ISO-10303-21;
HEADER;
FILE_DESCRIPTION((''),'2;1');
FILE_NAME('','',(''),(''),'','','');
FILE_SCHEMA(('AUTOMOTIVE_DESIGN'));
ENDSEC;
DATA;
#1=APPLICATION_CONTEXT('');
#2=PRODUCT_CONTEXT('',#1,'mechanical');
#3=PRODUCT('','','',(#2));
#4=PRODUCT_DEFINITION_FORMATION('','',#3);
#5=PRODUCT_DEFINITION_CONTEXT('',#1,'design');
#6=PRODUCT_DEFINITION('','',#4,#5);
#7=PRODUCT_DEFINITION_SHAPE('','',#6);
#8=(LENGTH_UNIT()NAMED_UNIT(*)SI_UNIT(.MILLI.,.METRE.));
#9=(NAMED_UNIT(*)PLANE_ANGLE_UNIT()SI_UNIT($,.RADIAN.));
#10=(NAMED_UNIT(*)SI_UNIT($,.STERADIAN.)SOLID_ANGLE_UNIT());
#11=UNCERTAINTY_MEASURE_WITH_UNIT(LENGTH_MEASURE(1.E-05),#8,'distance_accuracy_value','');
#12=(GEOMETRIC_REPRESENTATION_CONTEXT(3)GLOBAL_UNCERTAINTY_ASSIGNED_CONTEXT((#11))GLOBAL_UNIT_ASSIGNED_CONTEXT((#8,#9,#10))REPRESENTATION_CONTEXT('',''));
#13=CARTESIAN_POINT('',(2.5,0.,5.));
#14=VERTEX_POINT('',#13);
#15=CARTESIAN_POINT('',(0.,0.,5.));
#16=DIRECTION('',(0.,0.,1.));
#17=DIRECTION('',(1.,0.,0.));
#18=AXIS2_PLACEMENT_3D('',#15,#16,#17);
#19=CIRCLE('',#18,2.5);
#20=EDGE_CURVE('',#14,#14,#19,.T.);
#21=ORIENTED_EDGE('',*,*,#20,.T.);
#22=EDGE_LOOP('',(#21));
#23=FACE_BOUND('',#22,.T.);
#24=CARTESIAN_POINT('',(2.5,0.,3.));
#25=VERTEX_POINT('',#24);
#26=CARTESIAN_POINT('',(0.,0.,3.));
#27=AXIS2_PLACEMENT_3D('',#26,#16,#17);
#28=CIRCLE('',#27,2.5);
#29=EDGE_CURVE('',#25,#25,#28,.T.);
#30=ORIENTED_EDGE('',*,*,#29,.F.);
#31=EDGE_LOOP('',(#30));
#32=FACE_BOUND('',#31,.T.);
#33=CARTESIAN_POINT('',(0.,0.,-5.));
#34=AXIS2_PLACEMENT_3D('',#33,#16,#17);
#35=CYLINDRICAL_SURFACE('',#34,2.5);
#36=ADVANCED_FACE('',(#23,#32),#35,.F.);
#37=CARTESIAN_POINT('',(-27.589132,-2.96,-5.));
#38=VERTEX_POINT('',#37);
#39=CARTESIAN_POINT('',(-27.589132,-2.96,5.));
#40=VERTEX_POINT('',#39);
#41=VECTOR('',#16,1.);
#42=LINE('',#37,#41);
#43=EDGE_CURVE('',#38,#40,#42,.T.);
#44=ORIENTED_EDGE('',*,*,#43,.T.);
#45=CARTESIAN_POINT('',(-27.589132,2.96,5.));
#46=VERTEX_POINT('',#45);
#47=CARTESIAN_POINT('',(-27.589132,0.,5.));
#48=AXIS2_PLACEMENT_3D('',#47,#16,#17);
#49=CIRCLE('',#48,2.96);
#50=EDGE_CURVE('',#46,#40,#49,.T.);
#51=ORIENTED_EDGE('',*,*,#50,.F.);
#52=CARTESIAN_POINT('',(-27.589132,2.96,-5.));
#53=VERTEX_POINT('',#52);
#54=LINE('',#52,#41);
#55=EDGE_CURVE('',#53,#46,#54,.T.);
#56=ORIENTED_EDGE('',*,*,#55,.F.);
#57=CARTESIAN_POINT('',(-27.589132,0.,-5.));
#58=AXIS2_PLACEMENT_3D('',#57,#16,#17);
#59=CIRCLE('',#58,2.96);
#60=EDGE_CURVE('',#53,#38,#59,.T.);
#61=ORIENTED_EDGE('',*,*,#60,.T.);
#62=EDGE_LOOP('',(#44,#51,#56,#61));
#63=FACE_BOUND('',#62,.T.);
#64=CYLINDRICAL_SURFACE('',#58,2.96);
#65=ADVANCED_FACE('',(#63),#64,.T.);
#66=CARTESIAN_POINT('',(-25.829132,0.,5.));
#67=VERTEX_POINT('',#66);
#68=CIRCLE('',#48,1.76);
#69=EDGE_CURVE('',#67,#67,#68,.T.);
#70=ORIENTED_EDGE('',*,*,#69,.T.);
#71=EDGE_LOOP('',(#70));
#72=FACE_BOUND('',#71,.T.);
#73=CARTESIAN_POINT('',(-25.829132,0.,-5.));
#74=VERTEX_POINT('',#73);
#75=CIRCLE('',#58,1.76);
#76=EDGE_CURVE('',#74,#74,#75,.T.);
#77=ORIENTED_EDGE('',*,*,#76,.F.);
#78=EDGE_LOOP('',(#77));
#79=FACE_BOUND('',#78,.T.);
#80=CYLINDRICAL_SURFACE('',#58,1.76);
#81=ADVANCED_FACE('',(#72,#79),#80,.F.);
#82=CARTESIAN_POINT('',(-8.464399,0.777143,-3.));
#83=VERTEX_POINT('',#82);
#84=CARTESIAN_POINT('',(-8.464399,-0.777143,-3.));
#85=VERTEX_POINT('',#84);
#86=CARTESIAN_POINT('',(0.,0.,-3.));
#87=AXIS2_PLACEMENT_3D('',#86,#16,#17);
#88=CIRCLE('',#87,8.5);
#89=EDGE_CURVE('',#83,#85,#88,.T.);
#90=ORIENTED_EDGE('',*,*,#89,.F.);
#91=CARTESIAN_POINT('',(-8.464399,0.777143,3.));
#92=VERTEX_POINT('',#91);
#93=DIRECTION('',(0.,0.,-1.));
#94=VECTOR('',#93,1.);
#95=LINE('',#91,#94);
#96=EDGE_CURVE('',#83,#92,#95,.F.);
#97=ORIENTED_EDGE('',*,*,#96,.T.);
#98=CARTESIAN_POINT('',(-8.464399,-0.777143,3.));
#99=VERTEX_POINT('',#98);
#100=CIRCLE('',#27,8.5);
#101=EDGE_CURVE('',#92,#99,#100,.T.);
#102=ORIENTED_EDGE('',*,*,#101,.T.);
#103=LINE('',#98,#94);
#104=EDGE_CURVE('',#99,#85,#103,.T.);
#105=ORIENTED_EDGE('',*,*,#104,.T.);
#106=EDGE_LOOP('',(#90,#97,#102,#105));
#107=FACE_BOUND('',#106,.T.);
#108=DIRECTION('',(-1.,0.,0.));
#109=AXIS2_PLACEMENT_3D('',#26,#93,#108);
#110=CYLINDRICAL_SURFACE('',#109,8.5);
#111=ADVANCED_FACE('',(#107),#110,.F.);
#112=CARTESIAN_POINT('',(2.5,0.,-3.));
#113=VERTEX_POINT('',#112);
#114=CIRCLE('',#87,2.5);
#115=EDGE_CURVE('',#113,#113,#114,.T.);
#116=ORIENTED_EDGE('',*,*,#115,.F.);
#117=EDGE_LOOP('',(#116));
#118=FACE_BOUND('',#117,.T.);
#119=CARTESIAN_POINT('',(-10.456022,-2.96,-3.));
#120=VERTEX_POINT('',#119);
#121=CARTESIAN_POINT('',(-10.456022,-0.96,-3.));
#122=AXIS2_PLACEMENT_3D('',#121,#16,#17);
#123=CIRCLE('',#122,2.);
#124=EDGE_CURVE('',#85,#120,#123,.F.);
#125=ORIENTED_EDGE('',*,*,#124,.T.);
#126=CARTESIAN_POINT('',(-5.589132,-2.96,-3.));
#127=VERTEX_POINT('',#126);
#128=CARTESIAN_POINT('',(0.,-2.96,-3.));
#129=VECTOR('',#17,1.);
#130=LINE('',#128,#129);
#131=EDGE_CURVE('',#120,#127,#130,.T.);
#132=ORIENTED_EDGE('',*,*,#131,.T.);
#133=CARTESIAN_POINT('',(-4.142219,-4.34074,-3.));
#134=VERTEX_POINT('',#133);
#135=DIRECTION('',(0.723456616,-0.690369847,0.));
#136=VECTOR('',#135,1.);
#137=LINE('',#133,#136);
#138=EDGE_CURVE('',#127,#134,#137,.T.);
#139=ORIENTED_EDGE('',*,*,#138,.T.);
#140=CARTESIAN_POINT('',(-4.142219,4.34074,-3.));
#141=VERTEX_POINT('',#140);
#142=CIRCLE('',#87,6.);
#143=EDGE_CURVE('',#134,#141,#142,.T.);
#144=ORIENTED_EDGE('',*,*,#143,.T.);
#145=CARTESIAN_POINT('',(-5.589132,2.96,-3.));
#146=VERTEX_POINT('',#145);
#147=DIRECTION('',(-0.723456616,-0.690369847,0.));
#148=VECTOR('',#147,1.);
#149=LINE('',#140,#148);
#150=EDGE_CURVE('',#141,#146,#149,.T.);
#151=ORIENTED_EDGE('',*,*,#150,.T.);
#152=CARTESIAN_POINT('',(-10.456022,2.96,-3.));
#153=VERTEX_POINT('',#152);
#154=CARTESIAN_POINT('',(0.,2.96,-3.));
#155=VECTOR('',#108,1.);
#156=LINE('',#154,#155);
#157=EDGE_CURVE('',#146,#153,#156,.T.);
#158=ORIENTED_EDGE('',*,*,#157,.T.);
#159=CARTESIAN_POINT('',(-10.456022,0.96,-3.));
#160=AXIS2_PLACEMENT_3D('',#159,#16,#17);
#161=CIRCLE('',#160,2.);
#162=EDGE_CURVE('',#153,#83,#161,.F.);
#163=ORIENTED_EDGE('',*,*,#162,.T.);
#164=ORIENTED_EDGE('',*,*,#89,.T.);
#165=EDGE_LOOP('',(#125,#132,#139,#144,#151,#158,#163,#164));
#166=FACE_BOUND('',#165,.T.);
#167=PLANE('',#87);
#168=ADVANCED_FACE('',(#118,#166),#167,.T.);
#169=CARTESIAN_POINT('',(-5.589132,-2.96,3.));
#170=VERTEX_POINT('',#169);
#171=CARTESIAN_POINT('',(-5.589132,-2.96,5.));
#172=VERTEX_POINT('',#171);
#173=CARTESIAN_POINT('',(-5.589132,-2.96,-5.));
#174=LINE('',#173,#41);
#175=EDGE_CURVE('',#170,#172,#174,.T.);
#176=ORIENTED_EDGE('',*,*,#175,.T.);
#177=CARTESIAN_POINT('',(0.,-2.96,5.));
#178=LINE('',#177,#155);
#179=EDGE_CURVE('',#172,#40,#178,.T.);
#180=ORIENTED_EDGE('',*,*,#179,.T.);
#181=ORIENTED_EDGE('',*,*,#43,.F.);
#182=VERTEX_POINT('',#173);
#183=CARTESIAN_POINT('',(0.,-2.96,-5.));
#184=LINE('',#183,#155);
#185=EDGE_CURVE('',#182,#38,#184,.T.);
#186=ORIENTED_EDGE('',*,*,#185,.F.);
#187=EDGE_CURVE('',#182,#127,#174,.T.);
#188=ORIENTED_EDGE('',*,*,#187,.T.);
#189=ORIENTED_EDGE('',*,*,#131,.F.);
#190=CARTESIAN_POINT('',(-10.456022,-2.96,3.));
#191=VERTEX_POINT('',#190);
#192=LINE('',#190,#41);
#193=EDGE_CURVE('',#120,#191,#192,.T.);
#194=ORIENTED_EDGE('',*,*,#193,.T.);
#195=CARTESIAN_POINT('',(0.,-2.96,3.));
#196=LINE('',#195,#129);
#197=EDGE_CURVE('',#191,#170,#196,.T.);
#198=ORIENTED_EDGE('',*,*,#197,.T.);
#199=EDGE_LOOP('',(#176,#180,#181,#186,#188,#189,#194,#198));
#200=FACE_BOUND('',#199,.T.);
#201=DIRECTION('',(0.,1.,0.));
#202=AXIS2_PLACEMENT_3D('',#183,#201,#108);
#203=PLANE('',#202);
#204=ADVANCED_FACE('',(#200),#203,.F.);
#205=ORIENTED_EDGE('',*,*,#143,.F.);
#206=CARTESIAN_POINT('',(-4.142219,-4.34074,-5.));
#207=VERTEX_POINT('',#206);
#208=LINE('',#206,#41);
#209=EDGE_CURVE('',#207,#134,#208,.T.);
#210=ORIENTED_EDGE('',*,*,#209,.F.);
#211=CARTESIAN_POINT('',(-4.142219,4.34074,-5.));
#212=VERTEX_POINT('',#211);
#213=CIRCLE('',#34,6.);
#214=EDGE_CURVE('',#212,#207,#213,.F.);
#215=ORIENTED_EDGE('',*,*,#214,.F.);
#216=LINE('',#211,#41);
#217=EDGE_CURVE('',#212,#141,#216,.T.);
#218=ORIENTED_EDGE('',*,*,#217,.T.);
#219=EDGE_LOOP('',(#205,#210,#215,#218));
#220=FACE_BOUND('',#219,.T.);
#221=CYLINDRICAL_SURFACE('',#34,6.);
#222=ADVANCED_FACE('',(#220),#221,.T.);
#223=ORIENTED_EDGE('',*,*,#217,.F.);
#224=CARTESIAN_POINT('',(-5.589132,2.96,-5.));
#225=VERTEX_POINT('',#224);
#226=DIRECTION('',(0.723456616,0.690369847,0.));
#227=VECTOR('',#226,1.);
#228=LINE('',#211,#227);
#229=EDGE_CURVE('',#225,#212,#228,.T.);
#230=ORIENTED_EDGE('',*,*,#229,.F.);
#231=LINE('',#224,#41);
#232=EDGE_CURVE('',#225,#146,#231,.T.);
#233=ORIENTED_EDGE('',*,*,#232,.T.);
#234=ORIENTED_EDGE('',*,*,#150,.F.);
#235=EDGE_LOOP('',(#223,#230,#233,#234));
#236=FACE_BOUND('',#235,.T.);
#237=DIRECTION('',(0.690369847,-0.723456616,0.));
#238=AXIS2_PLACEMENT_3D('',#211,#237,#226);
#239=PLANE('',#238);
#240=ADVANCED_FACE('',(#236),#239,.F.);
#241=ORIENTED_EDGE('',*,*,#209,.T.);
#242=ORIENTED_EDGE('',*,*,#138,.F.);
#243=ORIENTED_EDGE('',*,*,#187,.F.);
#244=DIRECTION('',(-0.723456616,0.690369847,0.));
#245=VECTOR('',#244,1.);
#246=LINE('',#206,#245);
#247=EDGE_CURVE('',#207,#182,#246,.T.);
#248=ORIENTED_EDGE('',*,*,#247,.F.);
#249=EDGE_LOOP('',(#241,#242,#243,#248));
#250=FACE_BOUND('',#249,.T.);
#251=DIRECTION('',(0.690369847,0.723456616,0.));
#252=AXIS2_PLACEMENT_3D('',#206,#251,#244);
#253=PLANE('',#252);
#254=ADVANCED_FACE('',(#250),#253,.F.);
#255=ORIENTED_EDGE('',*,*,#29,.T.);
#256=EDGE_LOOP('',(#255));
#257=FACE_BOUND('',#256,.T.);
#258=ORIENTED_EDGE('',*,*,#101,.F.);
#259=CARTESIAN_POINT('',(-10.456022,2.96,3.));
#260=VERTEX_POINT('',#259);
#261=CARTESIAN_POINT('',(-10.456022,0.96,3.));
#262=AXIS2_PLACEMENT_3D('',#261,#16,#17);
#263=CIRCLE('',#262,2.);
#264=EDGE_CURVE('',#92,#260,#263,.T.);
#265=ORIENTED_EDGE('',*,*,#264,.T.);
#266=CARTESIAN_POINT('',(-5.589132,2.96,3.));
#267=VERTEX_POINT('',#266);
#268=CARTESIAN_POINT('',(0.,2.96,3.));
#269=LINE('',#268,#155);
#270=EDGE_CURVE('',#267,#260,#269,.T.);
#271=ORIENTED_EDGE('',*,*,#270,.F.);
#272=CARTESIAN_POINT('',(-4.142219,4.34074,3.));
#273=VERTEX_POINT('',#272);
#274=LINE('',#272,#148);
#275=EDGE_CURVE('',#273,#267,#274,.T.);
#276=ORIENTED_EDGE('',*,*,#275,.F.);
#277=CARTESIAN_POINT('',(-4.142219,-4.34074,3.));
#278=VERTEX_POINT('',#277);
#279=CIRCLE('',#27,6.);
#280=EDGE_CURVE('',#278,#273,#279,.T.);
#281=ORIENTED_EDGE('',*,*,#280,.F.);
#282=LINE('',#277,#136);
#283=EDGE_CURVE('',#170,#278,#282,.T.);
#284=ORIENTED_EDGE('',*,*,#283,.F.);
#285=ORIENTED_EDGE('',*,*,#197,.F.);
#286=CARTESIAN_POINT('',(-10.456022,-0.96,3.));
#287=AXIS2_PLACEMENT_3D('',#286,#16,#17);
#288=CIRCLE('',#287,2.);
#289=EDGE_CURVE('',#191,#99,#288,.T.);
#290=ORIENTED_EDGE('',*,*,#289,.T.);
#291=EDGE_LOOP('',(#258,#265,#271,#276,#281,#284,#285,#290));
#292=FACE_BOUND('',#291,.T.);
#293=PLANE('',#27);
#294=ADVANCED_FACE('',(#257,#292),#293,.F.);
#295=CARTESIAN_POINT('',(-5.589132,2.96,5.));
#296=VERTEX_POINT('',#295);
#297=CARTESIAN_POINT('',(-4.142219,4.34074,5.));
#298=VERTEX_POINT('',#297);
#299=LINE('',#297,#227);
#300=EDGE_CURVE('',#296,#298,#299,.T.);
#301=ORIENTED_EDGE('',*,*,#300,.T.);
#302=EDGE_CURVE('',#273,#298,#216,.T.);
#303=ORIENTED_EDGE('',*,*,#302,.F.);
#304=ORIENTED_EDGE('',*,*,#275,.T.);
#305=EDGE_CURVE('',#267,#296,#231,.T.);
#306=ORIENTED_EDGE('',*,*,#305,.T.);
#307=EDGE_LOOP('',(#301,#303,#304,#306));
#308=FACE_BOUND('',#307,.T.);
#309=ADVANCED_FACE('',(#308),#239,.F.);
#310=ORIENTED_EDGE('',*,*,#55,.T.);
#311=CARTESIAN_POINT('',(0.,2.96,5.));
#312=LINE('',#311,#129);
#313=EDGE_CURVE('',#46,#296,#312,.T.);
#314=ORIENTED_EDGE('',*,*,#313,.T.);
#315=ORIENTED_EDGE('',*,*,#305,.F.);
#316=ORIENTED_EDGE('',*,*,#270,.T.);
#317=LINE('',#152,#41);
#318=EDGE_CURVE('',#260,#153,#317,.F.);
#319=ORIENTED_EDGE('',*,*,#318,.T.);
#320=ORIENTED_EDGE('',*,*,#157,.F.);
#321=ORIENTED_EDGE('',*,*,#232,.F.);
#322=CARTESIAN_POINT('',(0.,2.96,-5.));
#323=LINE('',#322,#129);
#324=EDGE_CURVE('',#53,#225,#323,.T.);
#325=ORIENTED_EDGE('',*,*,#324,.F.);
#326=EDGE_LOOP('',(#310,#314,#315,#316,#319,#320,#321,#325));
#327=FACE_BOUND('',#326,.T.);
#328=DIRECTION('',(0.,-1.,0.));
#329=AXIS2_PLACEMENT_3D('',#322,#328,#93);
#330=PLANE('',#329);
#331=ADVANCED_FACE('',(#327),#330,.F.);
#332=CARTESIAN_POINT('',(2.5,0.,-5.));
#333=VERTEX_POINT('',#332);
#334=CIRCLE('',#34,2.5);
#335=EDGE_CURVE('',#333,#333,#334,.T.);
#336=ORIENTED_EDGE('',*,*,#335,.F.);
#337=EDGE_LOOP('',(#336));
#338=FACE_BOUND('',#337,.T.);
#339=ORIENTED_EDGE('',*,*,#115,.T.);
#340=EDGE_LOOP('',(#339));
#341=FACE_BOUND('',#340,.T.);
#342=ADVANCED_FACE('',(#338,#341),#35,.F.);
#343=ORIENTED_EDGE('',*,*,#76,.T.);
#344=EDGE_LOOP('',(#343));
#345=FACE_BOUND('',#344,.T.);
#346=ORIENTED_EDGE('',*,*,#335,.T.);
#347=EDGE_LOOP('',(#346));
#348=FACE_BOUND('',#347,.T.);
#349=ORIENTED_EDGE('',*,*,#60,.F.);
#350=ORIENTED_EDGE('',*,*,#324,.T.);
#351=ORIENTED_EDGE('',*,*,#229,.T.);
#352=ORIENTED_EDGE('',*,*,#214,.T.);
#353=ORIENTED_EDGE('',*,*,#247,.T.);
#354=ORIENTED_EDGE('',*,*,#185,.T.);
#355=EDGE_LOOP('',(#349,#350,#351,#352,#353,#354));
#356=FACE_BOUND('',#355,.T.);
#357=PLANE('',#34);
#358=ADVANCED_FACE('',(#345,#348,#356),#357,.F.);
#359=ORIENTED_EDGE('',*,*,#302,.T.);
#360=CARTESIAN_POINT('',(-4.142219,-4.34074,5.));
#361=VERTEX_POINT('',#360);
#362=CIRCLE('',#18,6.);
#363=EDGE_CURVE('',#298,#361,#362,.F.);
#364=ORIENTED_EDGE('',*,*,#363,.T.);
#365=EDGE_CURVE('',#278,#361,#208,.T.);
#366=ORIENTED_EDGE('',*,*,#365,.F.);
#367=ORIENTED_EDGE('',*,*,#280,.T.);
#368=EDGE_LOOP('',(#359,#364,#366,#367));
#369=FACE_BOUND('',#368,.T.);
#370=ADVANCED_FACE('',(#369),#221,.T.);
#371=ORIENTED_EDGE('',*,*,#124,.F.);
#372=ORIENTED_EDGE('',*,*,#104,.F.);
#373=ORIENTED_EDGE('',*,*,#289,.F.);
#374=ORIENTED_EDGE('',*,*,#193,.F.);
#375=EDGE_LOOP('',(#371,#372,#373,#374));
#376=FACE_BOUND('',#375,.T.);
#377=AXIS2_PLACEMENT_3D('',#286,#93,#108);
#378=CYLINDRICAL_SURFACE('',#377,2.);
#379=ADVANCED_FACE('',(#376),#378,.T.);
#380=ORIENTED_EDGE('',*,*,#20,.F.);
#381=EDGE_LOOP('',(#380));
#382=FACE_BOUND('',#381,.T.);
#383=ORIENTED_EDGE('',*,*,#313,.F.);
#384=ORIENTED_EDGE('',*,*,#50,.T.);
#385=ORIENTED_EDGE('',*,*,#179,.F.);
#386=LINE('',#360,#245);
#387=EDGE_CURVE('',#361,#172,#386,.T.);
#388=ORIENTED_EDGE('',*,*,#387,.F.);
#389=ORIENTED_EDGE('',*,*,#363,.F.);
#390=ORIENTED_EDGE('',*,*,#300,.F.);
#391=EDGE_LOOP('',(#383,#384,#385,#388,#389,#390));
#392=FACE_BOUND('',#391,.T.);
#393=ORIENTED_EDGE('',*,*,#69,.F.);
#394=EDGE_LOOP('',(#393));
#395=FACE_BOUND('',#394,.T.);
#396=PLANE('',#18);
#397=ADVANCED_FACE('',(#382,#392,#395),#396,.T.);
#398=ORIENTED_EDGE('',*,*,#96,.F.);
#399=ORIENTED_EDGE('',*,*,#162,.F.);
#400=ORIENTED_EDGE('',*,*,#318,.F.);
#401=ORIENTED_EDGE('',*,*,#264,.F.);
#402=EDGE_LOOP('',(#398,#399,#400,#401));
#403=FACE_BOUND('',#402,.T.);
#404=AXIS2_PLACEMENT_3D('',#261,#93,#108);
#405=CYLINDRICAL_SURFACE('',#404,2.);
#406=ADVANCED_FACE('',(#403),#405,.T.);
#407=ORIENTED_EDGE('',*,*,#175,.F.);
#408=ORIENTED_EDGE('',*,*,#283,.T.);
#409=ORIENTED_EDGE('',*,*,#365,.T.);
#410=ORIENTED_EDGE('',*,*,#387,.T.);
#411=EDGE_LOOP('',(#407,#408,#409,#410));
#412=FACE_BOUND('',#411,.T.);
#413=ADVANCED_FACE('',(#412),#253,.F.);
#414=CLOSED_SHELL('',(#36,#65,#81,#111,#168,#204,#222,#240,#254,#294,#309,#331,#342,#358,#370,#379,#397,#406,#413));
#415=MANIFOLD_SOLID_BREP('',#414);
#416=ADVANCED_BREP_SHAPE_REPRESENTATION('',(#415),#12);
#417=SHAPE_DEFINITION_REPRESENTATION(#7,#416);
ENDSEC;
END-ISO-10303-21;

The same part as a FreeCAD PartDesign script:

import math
import FreeCAD as App
import Part
import Sketcher
Q = App.Units.Quantity


def edges_at(feature, points):
    """Names of the edges that pass closest to the given points."""
    edges = feature.Shape.Edges
    near = lambda p: min(range(len(edges)), key=lambda i: edges[i].distToShape(Part.Vertex(*p))[0])
    return sorted({f"Edge{near(p) + 1}" for p in points})

doc = App.newDocument("Part")
body = doc.addObject("PartDesign::Body", "Body")

# Sketch on XY plane
sketch1 = body.newObject("Sketcher::SketchObject", "Sketch")
sketch1.AttachmentSupport = (doc.getObject("XY_Plane"), [""])
sketch1.MapMode = "FlatFace"
sketch1.addGeometry(Part.ArcOfCircle(Part.Circle(App.Vector(-27.6, 0, 0), App.Vector(0, 0, 1), 3), math.radians(90), math.radians(270)), False)
sketch1.addGeometry(Part.LineSegment(App.Vector(-27.6, -3, 0), App.Vector(-5.6, -3, 0)), False)
sketch1.addGeometry(Part.LineSegment(App.Vector(-5.6, -3, 0), App.Vector(-4.1, -4.3, 0)), False)
sketch1.addGeometry(Part.ArcOfCircle(Part.Circle(App.Vector(0, 0, 0), App.Vector(0, 0, 1), 6), math.radians(-134), math.radians(134)), False)
sketch1.addGeometry(Part.LineSegment(App.Vector(-4.1, 4.3, 0), App.Vector(-5.6, 3, 0)), False)
sketch1.addGeometry(Part.LineSegment(App.Vector(-5.6, 3, 0), App.Vector(-27.6, 3, 0)), False)
sketch1.addGeometry(Part.Circle(App.Vector(-27.6, 0, 0), App.Vector(0, 0, 1), 1.8), False)
sketch1.addGeometry(Part.Circle(App.Vector(0, 0, 0), App.Vector(0, 0, 1), 2.5), False)
sketch1.addConstraint(Sketcher.Constraint("Tangent", 0, 2, 1, 1))
sketch1.addConstraint(Sketcher.Constraint("Coincident", 1, 2, 2, 1))
sketch1.addConstraint(Sketcher.Constraint("Tangent", 2, 2, 3, 1))
sketch1.addConstraint(Sketcher.Constraint("Tangent", 3, 2, 4, 1))
sketch1.addConstraint(Sketcher.Constraint("Coincident", 4, 2, 5, 1))
sketch1.addConstraint(Sketcher.Constraint("Tangent", 5, 2, 0, 1))
sketch1.addConstraint(Sketcher.Constraint("Horizontal", 1))
sketch1.addConstraint(Sketcher.Constraint("Horizontal", 5))
sketch1.addConstraint(Sketcher.Constraint("Coincident", 3, 3, -1, 1))
sketch1.addConstraint(Sketcher.Constraint("Coincident", 7, 3, -1, 1))
sketch1.addConstraint(Sketcher.Constraint("Coincident", 6, 3, 0, 3))
sketch1.addConstraint(Sketcher.Constraint("Symmetric", 1, 2, 4, 2, -1))
sketch1.addConstraint(Sketcher.Constraint("Diameter", 7, Q("5 mm")))
sketch1.addConstraint(Sketcher.Constraint("Radius", 3, Q("6 mm")))
sketch1.addConstraint(Sketcher.Constraint("Diameter", 6, Q("3.52 mm")))
sketch1.addConstraint(Sketcher.Constraint("DistanceX", 1, 1, 1, 2, Q("22 mm")))
sketch1.addConstraint(Sketcher.Constraint("Radius", 0, Q("2.96 mm")))
sketch1.addConstraint(Sketcher.Constraint("Distance", 2, Q("2 mm")))
pad1 = body.newObject("PartDesign::Pad", "Pad")
pad1.Profile = sketch1
pad1.Type = "TwoLengths"
pad1.Length = 5
pad1.Length2 = 5

# Sketch on XY plane
sketch2 = body.newObject("Sketcher::SketchObject", "Sketch001")
sketch2.AttachmentSupport = (doc.getObject("XY_Plane"), [""])
sketch2.MapMode = "FlatFace"
sketch2.addGeometry(Part.ArcOfCircle(Part.Circle(App.Vector(0, 0, 0), App.Vector(0, 0, 1), 8.5), math.radians(0), math.radians(160)), False)
sketch2.addGeometry(Part.ArcOfCircle(Part.Circle(App.Vector(0, 0, 0), App.Vector(0, 0, 1), 8.5), math.radians(160), math.radians(200)), False)
sketch2.addGeometry(Part.ArcOfCircle(Part.Circle(App.Vector(0, 0, 0), App.Vector(0, 0, 1), 8.5), math.radians(-160), math.radians(0)), False)
sketch2.addGeometry(Part.Circle(App.Vector(0, 0, 0), App.Vector(0, 0, 1), 2.5), False)
sketch2.addConstraint(Sketcher.Constraint("Tangent", 0, 2, 1, 1))
sketch2.addConstraint(Sketcher.Constraint("Tangent", 1, 2, 2, 1))
sketch2.addConstraint(Sketcher.Constraint("Tangent", 2, 2, 0, 1))
sketch2.addConstraint(Sketcher.Constraint("Coincident", 0, 3, -1, 1))
sketch2.addConstraint(Sketcher.Constraint("Coincident", 3, 3, -1, 1))
sketch2.addConstraint(Sketcher.Constraint("PointOnObject", 2, 2, -1))
sketch2.addConstraint(Sketcher.Constraint("Vertical", 0, 2, 1, 2))
sketch2.addConstraint(Sketcher.Constraint("Diameter", 3, Q("5 mm")))
sketch2.addConstraint(Sketcher.Constraint("Radius", 0, Q("8.5 mm")))
sketch2.addConstraint(Sketcher.Constraint("DistanceY", -1, 1, 0, 2, Q("2.96 mm")))
pocket1 = body.newObject("PartDesign::Pocket", "Pocket")
pocket1.Profile = sketch2
pocket1.Type = "TwoLengths"
pocket1.Length = 3
pocket1.Length2 = 3
pocket1.Reversed = True
doc.recompute()

fillet = body.newObject("PartDesign::Fillet", "Fillet")
fillet.Base = (pocket1, edges_at(pocket1, [(-7.968, -2.96, 0), (-7.968, 2.96, 0)]))
fillet.Radius = 2

doc.recompute()
